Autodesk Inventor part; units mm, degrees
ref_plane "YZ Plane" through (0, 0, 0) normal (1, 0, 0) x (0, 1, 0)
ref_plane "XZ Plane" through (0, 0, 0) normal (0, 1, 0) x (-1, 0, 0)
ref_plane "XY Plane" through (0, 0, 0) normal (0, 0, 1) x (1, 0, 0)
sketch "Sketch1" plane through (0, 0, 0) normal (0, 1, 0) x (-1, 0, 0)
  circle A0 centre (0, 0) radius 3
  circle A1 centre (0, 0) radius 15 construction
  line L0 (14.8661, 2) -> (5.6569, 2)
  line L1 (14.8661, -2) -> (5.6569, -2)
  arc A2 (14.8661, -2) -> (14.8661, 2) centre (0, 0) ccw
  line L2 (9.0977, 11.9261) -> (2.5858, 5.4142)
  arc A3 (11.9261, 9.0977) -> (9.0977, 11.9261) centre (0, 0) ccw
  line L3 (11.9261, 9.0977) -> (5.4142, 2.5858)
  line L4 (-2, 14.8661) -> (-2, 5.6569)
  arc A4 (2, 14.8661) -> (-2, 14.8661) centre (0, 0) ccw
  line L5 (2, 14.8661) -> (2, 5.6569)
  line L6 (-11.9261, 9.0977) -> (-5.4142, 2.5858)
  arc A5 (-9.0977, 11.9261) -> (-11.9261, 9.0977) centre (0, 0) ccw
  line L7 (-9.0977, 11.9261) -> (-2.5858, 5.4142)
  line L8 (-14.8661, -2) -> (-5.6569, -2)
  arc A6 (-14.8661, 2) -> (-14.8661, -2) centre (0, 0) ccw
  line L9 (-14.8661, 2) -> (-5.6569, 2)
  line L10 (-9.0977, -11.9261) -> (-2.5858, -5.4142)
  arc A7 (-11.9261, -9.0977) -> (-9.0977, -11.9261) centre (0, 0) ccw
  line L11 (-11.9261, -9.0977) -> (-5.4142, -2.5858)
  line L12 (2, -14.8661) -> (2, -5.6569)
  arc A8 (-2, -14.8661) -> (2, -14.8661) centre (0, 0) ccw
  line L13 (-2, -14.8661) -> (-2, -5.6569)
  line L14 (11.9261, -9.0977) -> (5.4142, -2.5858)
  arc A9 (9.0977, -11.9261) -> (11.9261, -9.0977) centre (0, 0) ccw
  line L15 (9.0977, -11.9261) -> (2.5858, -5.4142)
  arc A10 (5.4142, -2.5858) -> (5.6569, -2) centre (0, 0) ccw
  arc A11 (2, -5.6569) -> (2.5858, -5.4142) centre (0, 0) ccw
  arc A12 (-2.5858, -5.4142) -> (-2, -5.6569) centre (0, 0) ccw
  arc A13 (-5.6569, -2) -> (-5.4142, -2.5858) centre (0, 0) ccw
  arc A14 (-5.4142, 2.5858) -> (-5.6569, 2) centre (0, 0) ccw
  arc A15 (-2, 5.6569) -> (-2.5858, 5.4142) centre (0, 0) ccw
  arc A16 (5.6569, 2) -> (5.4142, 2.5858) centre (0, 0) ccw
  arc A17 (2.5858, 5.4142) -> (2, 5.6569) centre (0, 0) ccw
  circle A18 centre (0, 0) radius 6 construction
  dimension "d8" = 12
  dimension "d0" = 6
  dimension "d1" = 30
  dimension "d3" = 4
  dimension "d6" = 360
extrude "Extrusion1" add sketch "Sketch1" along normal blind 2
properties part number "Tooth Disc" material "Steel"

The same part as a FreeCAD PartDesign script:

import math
import FreeCAD as App
import Part
import Sketcher
Q = App.Units.Quantity

doc = App.newDocument("Part")
body = doc.addObject("PartDesign::Body", "Body")

# Sketch on XZ plane
sketch1 = doc.addObject("Sketcher::SketchObject", "Sketch")
body.addObject(sketch1)
sketch1.AttachmentSupport = (doc.XZ_Plane, [""])
sketch1.MapMode = "FlatFace"
sketch1.addGeometry([
    Part.ArcOfCircle(Part.Circle(App.Vector(0, 0, 0), App.Vector(0, 0, 1), 15.000031), math.radians(172.33776), math.radians(187.66224)),  # 0
    Part.LineSegment(App.Vector(-14.8661, 2, 0), App.Vector(-5.6569, 2, 0)),  # 1
    Part.ArcOfCircle(Part.Circle(App.Vector(-0.016507, 0.006332, 0), App.Vector(0, 0, 1), 5.982369), math.radians(154.457635), math.radians(160.5334)),  # 2
    Part.LineSegment(App.Vector(-5.4142, 2.5858, 0), App.Vector(-11.9261, 9.0977, 0)),  # 3
    Part.ArcOfCircle(Part.Circle(App.Vector(0, 0, 0), App.Vector(0, 0, 1), 15), math.radians(127.337818), math.radians(142.662182)),  # 4
    Part.LineSegment(App.Vector(-9.0977, 11.9261, 0), App.Vector(-2.5858, 5.4142, 0)),  # 5
    Part.ArcOfCircle(Part.Circle(App.Vector(0.007238, -0.016245, 0), App.Vector(0, 0, 1), 6.017772), math.radians(109.484488), math.radians(115.524477)),  # 6
    Part.LineSegment(App.Vector(-2, 5.6569, 0), App.Vector(-2, 14.8661, 0)),  # 7
    Part.ArcOfCircle(Part.Circle(App.Vector(0, 0, 0), App.Vector(0, 0, 1), 15.000031), math.radians(82.33776), math.radians(97.66224)),  # 8
    Part.LineSegment(App.Vector(2, 14.8661, 0), App.Vector(2, 5.6569, 0)),  # 9
    Part.ArcOfCircle(Part.Circle(App.Vector(0.006332, 0.016507, 0), App.Vector(0, 0, 1), 5.982369), math.radians(64.457635), math.radians(70.5334)),  # 10
    Part.LineSegment(App.Vector(2.5858, 5.4142, 0), App.Vector(9.0977, 11.9261, 0)),  # 11
    Part.ArcOfCircle(Part.Circle(App.Vector(0, 0, 0), App.Vector(0, 0, 1), 15), math.radians(37.337818), math.radians(52.662182)),  # 12
    Part.LineSegment(App.Vector(11.9261, 9.0977, 0), App.Vector(5.4142, 2.5858, 0)),  # 13
    Part.ArcOfCircle(Part.Circle(App.Vector(-0.016245, -0.007238, 0), App.Vector(0, 0, 1), 6.017772), math.radians(19.484488), math.radians(25.524477)),  # 14
    Part.LineSegment(App.Vector(5.6569, 2, 0), App.Vector(14.8661, 2, 0)),  # 15
    Part.ArcOfCircle(Part.Circle(App.Vector(0, 0, 0), App.Vector(0, 0, 1), 15.000031), math.radians(-7.66224), math.radians(7.66224)),  # 16
    Part.LineSegment(App.Vector(14.8661, -2, 0), App.Vector(5.6569, -2, 0)),  # 17
    Part.ArcOfCircle(Part.Circle(App.Vector(0.016507, -0.006332, 0), App.Vector(0, 0, 1), 5.982369), math.radians(-25.542365), math.radians(-19.4666)),  # 18
    Part.LineSegment(App.Vector(5.4142, -2.5858, 0), App.Vector(11.9261, -9.0977, 0)),  # 19
    Part.ArcOfCircle(Part.Circle(App.Vector(0, 0, 0), App.Vector(0, 0, 1), 15), math.radians(-52.662182), math.radians(-37.337818)),  # 20
    Part.LineSegment(App.Vector(9.0977, -11.9261, 0), App.Vector(2.5858, -5.4142, 0)),  # 21
    Part.ArcOfCircle(Part.Circle(App.Vector(-0.007238, 0.016245, 0), App.Vector(0, 0, 1), 6.017772), math.radians(-70.515512), math.radians(-64.475523)),  # 22
    Part.LineSegment(App.Vector(2, -5.6569, 0), App.Vector(2, -14.8661, 0)),  # 23
    Part.ArcOfCircle(Part.Circle(App.Vector(0, 0, 0), App.Vector(0, 0, 1), 15.000031), math.radians(-97.66224), math.radians(-82.33776)),  # 24
    Part.LineSegment(App.Vector(-2, -14.8661, 0), App.Vector(-2, -5.6569, 0)),  # 25
    Part.ArcOfCircle(Part.Circle(App.Vector(-0.006332, -0.016507, 0), App.Vector(0, 0, 1), 5.982369), math.radians(-115.542365), math.radians(-109.4666)),  # 26
    Part.LineSegment(App.Vector(-2.5858, -5.4142, 0), App.Vector(-9.0977, -11.9261, 0)),  # 27
    Part.ArcOfCircle(Part.Circle(App.Vector(0, 0, 0), App.Vector(0, 0, 1), 15), math.radians(-142.662182), math.radians(-127.337818)),  # 28
    Part.LineSegment(App.Vector(-11.9261, -9.0977, 0), App.Vector(-5.4142, -2.5858, 0)),  # 29
    Part.ArcOfCircle(Part.Circle(App.Vector(0.016245, 0.007238, 0), App.Vector(0, 0, 1), 6.017772), math.radians(-160.515512), math.radians(-154.475523)),  # 30
    Part.LineSegment(App.Vector(-5.6569, -2, 0), App.Vector(-14.8661, -2, 0)),  # 31
    Part.Circle(App.Vector(0, 0, 0), App.Vector(0, 0, 1), 3),  # 32
], False)
sketch1.addConstraint([
    Sketcher.Constraint("Coincident", 0, 1, 1, 1),
    Sketcher.Constraint("Coincident", 1, 2, 2, 2),
    Sketcher.Constraint("Coincident", 2, 1, 3, 1),
    Sketcher.Constraint("Coincident", 3, 2, 4, 2),
    Sketcher.Constraint("Coincident", 4, 1, 5, 1),
    Sketcher.Constraint("Coincident", 5, 2, 6, 2),
    Sketcher.Constraint("Coincident", 6, 1, 7, 1),
    Sketcher.Constraint("Coincident", 7, 2, 8, 2),
    Sketcher.Constraint("Coincident", 8, 1, 9, 1),
    Sketcher.Constraint("Coincident", 9, 2, 10, 2),
    Sketcher.Constraint("Coincident", 10, 1, 11, 1),
    Sketcher.Constraint("Coincident", 11, 2, 12, 2),
    Sketcher.Constraint("Coincident", 12, 1, 13, 1),
    Sketcher.Constraint("Coincident", 13, 2, 14, 2),
    Sketcher.Constraint("Coincident", 14, 1, 15, 1),
    Sketcher.Constraint("Coincident", 15, 2, 16, 2),
    Sketcher.Constraint("Coincident", 16, 1, 17, 1),
    Sketcher.Constraint("Coincident", 17, 2, 18, 2),
    Sketcher.Constraint("Coincident", 18, 1, 19, 1),
    Sketcher.Constraint("Coincident", 19, 2, 20, 2),
    Sketcher.Constraint("Coincident", 20, 1, 21, 1),
    Sketcher.Constraint("Coincident", 21, 2, 22, 2),
    Sketcher.Constraint("Coincident", 22, 1, 23, 1),
    Sketcher.Constraint("Coincident", 23, 2, 24, 2),
    Sketcher.Constraint("Coincident", 24, 1, 25, 1),
    Sketcher.Constraint("Coincident", 25, 2, 26, 2),
    Sketcher.Constraint("Coincident", 26, 1, 27, 1),
    Sketcher.Constraint("Coincident", 27, 2, 28, 2),
    Sketcher.Constraint("Coincident", 28, 1, 29, 1),
    Sketcher.Constraint("Coincident", 29, 2, 30, 2),
    Sketcher.Constraint("Coincident", 30, 1, 31, 1),
    Sketcher.Constraint("Coincident", 31, 2, 0, 2),
    Sketcher.Constraint("Horizontal", 1),
    Sketcher.Constraint("Vertical", 7),
    Sketcher.Constraint("Vertical", 9),
    Sketcher.Constraint("Horizontal", 15),
    Sketcher.Constraint("Horizontal", 17),
    Sketcher.Constraint("Vertical", 23),
    Sketcher.Constraint("Vertical", 25),
    Sketcher.Constraint("Horizontal", 31),
    Sketcher.Constraint("Coincident", 0, 3, -1, 1),
    Sketcher.Constraint("Coincident", 4, 3, -1, 1),
    Sketcher.Constraint("Coincident", 8, 3, -1, 1),
    Sketcher.Constraint("Coincident", 12, 3, -1, 1),
    Sketcher.Constraint("Coincident", 16, 3, -1, 1),
    Sketcher.Constraint("Coincident", 20, 3, -1, 1),
    Sketcher.Constraint("Coincident", 24, 3, -1, 1),
    Sketcher.Constraint("Coincident", 28, 3, -1, 1),
    Sketcher.Constraint("Coincident", 32, 3, -1, 1),
    Sketcher.Constraint("Equal", 0, 4),
    Sketcher.Constraint("Equal", 4, 8),
    Sketcher.Constraint("Equal", 2, 10),
    Sketcher.Constraint("Equal", 8, 12),
    Sketcher.Constraint("Equal", 6, 14),
    Sketcher.Constraint("Equal", 12, 16),
    Sketcher.Constraint("Equal", 10, 18),
    Sketcher.Constraint("Equal", 16, 20),
    Sketcher.Constraint("Equal", 14, 22),
    Sketcher.Constraint("Equal", 20, 24),
    Sketcher.Constraint("Equal", 18, 26),
    Sketcher.Constraint("Equal", 24, 28),
    Sketcher.Constraint("Equal", 22, 30),
    Sketcher.Constraint("Symmetric", 2, 3, 18, 3, -1, 1),
    Sketcher.Constraint("Symmetric", 6, 3, 22, 3, -1, 1),
    Sketcher.Constraint("Symmetric", 10, 3, 26, 3, -1, 1),
    Sketcher.Constraint("Symmetric", 14, 3, 30, 3, -1, 1),
    Sketcher.Constraint("Symmetric", 6, 1, 9, 2, -2),
    Sketcher.Constraint("Symmetric", 5, 2, 10, 1, -2),
    Sketcher.Constraint("Symmetric", 2, 1, 13, 2, -2),
    Sketcher.Constraint("Symmetric", 1, 2, 14, 1, -2),
    Sketcher.Constraint("Parallel", 3, 5),
    Sketcher.Constraint("Perpendicular", 5, 11),
    Sketcher.Constraint("Parallel", 11, 13),
    Sketcher.Constraint("Perpendicular", 13, 19),
    Sketcher.Constraint("Parallel", 19, 21),
    Sketcher.Constraint("Perpendicular", 21, 27),
    Sketcher.Constraint("Parallel", 27, 29),
    Sketcher.Constraint("Horizontal", 4, 1, 11, 2),
    Sketcher.Constraint("Horizontal", 23, 2, 24, 1),
    Sketcher.Constraint("Horizontal", 21, 2, 26, 1),
    Sketcher.Constraint("Horizontal", 19, 2, 28, 1),
    Sketcher.Constraint("Horizontal", 17, 2, 30, 1),
    Sketcher.Constraint("Vertical", 15, 2, 16, 1),
    Sketcher.Constraint("Vertical", 13, 2, 18, 1),
    Sketcher.Constraint("Vertical", 11, 2, 20, 1),
    Sketcher.Constraint("Vertical", 9, 2, 22, 1),
    Sketcher.Constraint("Equal", 31, 7),
    Sketcher.Constraint("Equal", 3, 5),
    Sketcher.Constraint("Diameter", 32, Q("6 mm")),
    Sketcher.Constraint("Radius", 0, Q("15 mm")),
    Sketcher.Constraint("DistanceX", 7, 2, 8, 1, Q("4 mm")),
    Sketcher.Constraint("DistanceY", 16, 1, 15, 2, Q("4 mm")),
    Sketcher.Constraint("Radius", 2, Q("5.9824 mm")),
    Sketcher.Constraint("Radius", 6, Q("6.0178 mm")),
    Sketcher.Constraint("DistanceY", 6, 3, 18, 3, Q("0.01 mm")),
    Sketcher.Constraint("DistanceX", 14, 3, 26, 3, Q("0.01 mm")),
    Sketcher.Constraint("DistanceX", 0, 1, 3, 2, Q("2.94 mm")),
    Sketcher.Constraint("DistanceX", 1, 1, 1, 2, Q("9.2092 mm")),
])
pad1 = doc.addObject("PartDesign::Pad", "Pad")
body.addObject(pad1)
pad1.Profile = sketch1
pad1.Length = 2
pad1.Reversed = True

doc.recompute()
